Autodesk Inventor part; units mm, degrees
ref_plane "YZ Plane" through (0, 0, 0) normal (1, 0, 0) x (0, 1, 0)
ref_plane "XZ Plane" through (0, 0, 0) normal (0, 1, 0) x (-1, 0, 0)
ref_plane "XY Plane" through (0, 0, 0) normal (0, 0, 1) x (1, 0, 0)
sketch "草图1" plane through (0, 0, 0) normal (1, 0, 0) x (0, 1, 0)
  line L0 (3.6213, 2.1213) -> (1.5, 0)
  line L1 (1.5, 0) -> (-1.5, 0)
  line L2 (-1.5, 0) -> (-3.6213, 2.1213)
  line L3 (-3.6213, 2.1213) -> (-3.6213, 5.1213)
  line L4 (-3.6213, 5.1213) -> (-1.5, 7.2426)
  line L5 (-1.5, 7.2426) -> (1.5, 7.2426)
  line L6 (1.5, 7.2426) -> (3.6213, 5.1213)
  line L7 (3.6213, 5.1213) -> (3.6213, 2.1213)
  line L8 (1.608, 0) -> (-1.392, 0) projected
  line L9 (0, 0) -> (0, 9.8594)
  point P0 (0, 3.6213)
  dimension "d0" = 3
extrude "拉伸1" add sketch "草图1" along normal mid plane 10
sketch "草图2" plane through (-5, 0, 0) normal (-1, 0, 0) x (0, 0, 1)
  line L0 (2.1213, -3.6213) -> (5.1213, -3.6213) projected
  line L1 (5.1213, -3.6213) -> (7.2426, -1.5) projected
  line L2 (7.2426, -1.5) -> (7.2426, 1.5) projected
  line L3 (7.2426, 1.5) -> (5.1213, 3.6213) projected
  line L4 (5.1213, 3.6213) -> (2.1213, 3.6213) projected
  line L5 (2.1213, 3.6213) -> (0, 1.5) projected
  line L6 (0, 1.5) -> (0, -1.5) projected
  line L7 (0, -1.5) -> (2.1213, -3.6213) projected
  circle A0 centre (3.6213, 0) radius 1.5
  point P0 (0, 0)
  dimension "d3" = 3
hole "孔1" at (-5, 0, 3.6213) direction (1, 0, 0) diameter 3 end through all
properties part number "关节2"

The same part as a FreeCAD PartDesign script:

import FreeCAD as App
import Part
import Sketcher

V = App.Vector
Q = App.Units.Quantity


def add_polygon(sketch, points):
    """Adds a closed chain of lines whose ends are joined by coincident constraints."""
    first, n = sketch.GeometryCount, len(points)
    for a, b in zip(points, points[1:] + points[:1]):
        sketch.addGeometry(Part.LineSegment(App.Vector(*a, 0), App.Vector(*b, 0)), False)
    for i in range(n):
        sketch.addConstraint(Sketcher.Constraint("Coincident", first + i, 2, first + (i + 1) % n, 1))

doc = App.newDocument("Part")
body = doc.addObject("PartDesign::Body", "Body")

# Sketch on YZ plane
sketch1 = body.newObject("Sketcher::SketchObject", "Sketch")
sketch1.AttachmentSupport = (doc.getObject("YZ_Plane"), [""])
sketch1.MapMode = "FlatFace"
add_polygon(sketch1, [(1.5, 0), (3.6, 2.1), (3.6, 5.1), (1.5, 7.2), (-1.5, 7.2), (-3.6, 5.1), (-3.6, 2.1), (-1.5, 0)])  # lines 0-7
sketch1.addConstraint(Sketcher.Constraint("Vertical", 1))
sketch1.addConstraint(Sketcher.Constraint("Horizontal", 3))
sketch1.addConstraint(Sketcher.Constraint("Vertical", 5))
sketch1.addConstraint(Sketcher.Constraint("Horizontal", 7))
sketch1.addConstraint(Sketcher.Constraint("Symmetric", 6, 2, 7, 2, -1, 1))
sketch1.addConstraint(Sketcher.Constraint("Symmetric", 1, 2, 4, 2, -2))
sketch1.addConstraint(Sketcher.Constraint("Perpendicular", 0, 2))
sketch1.addConstraint(Sketcher.Constraint("Perpendicular", 2, 4))
sketch1.addConstraint(Sketcher.Constraint("Perpendicular", 4, 6))
sketch1.addConstraint(Sketcher.Constraint("Horizontal", 0, 2, 5, 2))
sketch1.addConstraint(Sketcher.Constraint("Vertical", 3, 2, 6, 2))
sketch1.addConstraint(Sketcher.Constraint("Equal", 7, 1))
sketch1.addConstraint(Sketcher.Constraint("DistanceX", 3, 2, 3, 1, Q("3 mm")))
sketch1.addConstraint(Sketcher.Constraint("Distance", 0, Q("3 mm")))
pad1 = body.newObject("PartDesign::Pad", "Pad")
pad1.Profile = sketch1
pad1.Length = 10
pad1.Midplane = True

# Sketch on YZ plane
sketch2 = body.newObject("Sketcher::SketchObject", "Sketch001")
sketch2.AttachmentSupport = (doc.getObject("YZ_Plane"), [""])
sketch2.MapMode = "FlatFace"
sketch2.AttachmentOffset = App.Placement(V(0, 0, -5), App.Rotation())
sketch2.addGeometry(Part.Circle(V(0, 3.6, 0), V(0, 0, 1), 1.5), False)
sketch2.addConstraint(Sketcher.Constraint("PointOnObject", 0, 3, -2))
sketch2.addConstraint(Sketcher.Constraint("Diameter", 0, Q("3 mm")))
sketch2.addConstraint(Sketcher.Constraint("DistanceY", -1, 1, 0, 3, Q("3.6213 mm")))
doc.recompute()
hole = body.newObject("PartDesign::Hole", "Hole")
hole.Profile = sketch2
hole.ThreadType = "None"
hole.Diameter = 3
hole.DepthType = "ThroughAll"
hole.Reversed = True

doc.recompute()
